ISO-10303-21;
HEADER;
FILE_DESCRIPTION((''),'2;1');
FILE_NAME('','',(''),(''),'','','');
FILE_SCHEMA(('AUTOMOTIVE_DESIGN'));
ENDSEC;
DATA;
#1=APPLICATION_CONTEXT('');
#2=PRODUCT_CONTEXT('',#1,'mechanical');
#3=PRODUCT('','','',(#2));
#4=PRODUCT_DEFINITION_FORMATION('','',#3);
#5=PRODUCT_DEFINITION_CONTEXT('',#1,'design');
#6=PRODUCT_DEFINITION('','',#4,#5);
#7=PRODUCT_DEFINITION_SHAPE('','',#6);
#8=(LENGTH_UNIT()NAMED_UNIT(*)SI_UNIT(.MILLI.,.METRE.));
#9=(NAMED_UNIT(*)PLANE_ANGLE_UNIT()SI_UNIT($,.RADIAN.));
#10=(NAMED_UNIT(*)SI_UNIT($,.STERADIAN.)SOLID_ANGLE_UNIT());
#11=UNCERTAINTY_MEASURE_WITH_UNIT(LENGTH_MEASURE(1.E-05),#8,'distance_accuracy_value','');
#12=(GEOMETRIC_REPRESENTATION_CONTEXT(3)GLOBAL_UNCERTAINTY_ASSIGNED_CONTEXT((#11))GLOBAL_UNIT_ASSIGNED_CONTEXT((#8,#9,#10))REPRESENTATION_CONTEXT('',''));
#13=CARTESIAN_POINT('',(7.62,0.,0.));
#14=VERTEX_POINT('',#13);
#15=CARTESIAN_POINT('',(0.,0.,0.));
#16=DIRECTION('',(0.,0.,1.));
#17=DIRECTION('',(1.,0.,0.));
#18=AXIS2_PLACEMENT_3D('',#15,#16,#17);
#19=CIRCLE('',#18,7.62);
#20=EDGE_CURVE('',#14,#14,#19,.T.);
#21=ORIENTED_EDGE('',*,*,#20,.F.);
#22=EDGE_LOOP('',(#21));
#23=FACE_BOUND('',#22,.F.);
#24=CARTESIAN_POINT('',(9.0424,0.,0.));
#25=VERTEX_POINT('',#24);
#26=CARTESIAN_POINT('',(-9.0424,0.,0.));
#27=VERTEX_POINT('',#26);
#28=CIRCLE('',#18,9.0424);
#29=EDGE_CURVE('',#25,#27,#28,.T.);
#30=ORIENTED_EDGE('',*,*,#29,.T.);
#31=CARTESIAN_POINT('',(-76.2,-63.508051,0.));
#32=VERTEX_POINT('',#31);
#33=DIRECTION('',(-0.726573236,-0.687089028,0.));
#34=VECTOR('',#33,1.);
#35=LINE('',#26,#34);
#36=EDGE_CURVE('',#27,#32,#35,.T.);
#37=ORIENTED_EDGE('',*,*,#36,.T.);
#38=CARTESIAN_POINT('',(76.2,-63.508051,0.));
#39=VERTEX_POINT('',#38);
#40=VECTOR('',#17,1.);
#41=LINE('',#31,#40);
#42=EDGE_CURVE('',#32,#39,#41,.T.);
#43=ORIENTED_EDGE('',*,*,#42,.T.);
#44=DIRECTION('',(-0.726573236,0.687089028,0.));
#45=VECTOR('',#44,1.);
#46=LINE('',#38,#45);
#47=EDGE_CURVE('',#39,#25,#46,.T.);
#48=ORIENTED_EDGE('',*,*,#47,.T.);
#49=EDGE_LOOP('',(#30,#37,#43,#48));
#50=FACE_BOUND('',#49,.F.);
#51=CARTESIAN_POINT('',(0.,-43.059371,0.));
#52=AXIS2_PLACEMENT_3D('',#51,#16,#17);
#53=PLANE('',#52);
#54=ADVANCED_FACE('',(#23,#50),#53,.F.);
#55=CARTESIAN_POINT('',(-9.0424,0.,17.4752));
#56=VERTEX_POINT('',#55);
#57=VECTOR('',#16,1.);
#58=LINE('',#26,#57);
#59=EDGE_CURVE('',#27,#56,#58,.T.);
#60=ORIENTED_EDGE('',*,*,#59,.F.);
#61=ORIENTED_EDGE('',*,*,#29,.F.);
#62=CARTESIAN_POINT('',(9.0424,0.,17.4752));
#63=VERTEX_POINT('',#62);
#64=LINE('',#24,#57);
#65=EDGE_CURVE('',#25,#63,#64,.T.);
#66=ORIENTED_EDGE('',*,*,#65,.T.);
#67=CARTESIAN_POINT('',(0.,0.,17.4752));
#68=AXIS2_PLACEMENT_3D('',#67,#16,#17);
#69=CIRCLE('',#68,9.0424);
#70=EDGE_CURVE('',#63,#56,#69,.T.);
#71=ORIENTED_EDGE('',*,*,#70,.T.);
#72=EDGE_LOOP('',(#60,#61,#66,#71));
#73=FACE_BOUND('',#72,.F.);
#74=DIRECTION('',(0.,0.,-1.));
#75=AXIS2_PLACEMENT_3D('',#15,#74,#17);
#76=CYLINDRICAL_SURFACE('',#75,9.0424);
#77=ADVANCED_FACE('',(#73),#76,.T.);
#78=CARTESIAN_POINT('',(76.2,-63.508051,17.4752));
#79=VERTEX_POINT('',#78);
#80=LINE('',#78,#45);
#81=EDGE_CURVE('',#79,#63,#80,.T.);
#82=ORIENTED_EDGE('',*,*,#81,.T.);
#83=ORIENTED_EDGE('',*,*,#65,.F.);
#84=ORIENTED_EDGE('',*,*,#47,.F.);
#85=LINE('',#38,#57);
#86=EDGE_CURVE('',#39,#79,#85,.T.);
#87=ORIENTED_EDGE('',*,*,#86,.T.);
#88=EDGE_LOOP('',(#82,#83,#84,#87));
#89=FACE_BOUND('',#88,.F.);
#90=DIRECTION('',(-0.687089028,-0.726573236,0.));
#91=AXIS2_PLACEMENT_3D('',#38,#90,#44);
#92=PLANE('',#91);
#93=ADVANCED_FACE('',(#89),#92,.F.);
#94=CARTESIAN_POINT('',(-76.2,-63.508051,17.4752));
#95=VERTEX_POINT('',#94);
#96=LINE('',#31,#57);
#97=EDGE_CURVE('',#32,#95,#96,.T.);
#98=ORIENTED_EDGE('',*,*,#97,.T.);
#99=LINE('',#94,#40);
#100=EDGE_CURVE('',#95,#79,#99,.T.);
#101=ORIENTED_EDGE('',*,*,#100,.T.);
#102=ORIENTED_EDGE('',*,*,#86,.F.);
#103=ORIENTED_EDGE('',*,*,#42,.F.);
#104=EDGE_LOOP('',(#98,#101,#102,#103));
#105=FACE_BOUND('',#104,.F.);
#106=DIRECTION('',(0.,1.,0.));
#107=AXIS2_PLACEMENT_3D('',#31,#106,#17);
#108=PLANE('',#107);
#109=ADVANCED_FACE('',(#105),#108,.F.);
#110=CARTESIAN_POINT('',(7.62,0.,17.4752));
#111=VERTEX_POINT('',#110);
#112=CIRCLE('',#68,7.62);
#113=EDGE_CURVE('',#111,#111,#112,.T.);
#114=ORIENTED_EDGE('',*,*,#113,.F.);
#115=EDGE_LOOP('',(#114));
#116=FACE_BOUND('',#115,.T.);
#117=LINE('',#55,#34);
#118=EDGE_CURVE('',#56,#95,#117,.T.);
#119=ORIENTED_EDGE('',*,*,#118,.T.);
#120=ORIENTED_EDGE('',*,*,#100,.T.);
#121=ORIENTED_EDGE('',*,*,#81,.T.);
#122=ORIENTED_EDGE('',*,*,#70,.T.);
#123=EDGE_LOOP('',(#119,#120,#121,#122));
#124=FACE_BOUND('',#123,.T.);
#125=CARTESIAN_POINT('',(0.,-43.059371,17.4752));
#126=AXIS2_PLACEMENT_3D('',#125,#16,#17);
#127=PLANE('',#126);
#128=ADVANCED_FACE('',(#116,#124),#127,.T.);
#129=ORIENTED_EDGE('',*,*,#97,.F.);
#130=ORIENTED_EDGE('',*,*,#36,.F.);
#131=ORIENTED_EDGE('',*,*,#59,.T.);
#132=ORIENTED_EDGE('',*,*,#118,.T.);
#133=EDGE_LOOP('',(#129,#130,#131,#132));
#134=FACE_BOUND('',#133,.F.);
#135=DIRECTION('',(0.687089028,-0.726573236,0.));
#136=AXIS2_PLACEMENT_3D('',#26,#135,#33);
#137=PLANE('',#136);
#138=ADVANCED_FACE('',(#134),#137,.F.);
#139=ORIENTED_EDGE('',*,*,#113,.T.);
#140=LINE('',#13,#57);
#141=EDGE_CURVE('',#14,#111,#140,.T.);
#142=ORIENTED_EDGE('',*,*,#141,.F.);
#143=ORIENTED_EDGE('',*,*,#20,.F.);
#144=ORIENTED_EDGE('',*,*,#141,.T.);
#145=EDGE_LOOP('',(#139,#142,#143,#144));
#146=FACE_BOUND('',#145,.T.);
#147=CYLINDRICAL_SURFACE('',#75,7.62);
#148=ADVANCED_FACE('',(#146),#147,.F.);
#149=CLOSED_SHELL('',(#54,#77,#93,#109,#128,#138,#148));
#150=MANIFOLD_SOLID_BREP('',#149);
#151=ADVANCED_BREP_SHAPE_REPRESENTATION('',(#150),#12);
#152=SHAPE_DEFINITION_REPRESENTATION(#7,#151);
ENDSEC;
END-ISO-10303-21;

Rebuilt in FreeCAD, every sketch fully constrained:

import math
import FreeCAD as App
import Part
import Sketcher
from FreeCAD import Vector
Q = App.Units.Quantity

doc = App.newDocument("Part")
params = doc.addObject("Spreadsheet::Sheet", "Params")
for row, (alias, value) in enumerate([
    ("sketch1_diameter", "0.6 in"),
    ("sketch1_width", "6 in"),
    ("sketch1_radius", "0.356 in"),
    ("sketch1_length", "3.639 in"),
    ("pad1_length", "0.688 in"),
], start=1):
    params.set(f"A{row}", alias)
    params.set(f"B{row}", "=" + value)
    params.setAlias(f"B{row}", alias)

body = doc.addObject("PartDesign::Body", "Body")

# Sketch on XY plane
sketch1 = body.newObject("Sketcher::SketchObject", "Sketch")
sketch1.AttachmentSupport = (doc.getObject("XY_Plane"), [""])
sketch1.MapMode = "FlatFace"
sketch1.addGeometry([
    Part.LineSegment(Vector(76, -64, 0), Vector(9, 0, 0)),  # 0
    Part.ArcOfCircle(Part.Circle(Vector(0, 0, 0), Vector(0, 0, 1), 9), math.radians(0), math.radians(180)),  # 1
    Part.LineSegment(Vector(-9, 0, 0), Vector(-76, -64, 0)),  # 2
    Part.LineSegment(Vector(-76, -64, 0), Vector(76, -64, 0)),  # 3
    Part.Circle(Vector(0, 0, 0), Vector(0, 0, 1), 8),  # 4
], False)
sketch1.addConstraint([
    Sketcher.Constraint("Coincident", 0, 2, 1, 1),
    Sketcher.Constraint("Coincident", 1, 2, 2, 1),
    Sketcher.Constraint("Coincident", 2, 2, 3, 1),
    Sketcher.Constraint("Coincident", 3, 2, 0, 1),
    Sketcher.Constraint("Horizontal", 3),
    Sketcher.Constraint("Coincident", 1, 3, -1, 1),
    Sketcher.Constraint("Coincident", 4, 3, -1, 1),
    Sketcher.Constraint("PointOnObject", 0, 2, -1),
    Sketcher.Constraint("PointOnObject", 1, 2, -1),
    Sketcher.Constraint("Equal", 0, 2),
    Sketcher.Constraint("Diameter", 4, Q("0.6 in")),
    Sketcher.Constraint("DistanceX", 3, 1, 3, 2, Q("6 in")),
    Sketcher.Constraint("Radius", 1, Q("0.356 in")),
    Sketcher.Constraint("Distance", 0, Q("3.639 in")),
])
sketch1.setExpression("Constraints[10]", "Params.sketch1_diameter")
sketch1.setExpression("Constraints[11]", "Params.sketch1_width")
sketch1.setExpression("Constraints[12]", "Params.sketch1_radius")
sketch1.setExpression("Constraints[13]", "Params.sketch1_length")
pad1 = body.newObject("PartDesign::Pad", "Pad")
pad1.Profile = sketch1
pad1.setExpression("Length", "Params.pad1_length")

doc.recompute()
